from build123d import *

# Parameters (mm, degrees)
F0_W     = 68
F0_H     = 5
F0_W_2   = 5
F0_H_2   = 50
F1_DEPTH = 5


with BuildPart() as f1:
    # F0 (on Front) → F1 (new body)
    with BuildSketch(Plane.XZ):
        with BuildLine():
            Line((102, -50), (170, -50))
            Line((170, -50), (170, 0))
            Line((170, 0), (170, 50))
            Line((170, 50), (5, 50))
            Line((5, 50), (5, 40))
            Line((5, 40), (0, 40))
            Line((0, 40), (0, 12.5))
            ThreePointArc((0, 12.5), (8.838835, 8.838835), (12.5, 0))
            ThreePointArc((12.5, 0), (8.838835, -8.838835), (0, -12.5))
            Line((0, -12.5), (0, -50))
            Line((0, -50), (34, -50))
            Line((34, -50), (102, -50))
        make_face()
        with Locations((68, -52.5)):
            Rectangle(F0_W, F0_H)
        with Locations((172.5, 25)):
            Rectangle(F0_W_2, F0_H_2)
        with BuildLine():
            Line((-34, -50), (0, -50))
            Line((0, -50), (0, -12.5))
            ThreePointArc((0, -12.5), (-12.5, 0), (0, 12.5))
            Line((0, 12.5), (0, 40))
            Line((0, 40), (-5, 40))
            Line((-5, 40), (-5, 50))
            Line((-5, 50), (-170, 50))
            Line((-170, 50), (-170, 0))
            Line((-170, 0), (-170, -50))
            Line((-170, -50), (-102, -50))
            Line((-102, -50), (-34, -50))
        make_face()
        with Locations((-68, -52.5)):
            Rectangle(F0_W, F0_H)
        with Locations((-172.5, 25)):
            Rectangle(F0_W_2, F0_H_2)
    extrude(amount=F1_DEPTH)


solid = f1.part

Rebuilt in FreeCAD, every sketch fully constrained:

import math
import FreeCAD as App
import Part
import Sketcher
from FreeCAD import Vector
Q = App.Units.Quantity

doc = App.newDocument("Part")
body = doc.addObject("PartDesign::Body", "Body")

# Sketch on XZ plane
sketch1 = body.newObject("Sketcher::SketchObject", "Sketch")
sketch1.AttachmentSupport = (doc.getObject("XZ_Plane"), [""])
sketch1.MapMode = "FlatFace"
sketch1.addGeometry(Part.LineSegment(Vector(170, -50, 0), Vector(170, 0, 0)), False)
sketch1.addGeometry(Part.LineSegment(Vector(170, 0, 0), Vector(175, 0, 0)), False)
sketch1.addGeometry(Part.LineSegment(Vector(175, 0, 0), Vector(175, 50, 0)), False)
sketch1.addGeometry(Part.LineSegment(Vector(175, 50, 0), Vector(5, 50, 0)), False)
sketch1.addGeometry(Part.LineSegment(Vector(5, 50, 0), Vector(5, 40, 0)), False)
sketch1.addGeometry(Part.LineSegment(Vector(5, 40, 0), Vector(-5, 40, 0)), False)
sketch1.addGeometry(Part.LineSegment(Vector(-5, 40, 0), Vector(-5, 50, 0)), False)
sketch1.addGeometry(Part.LineSegment(Vector(-5, 50, 0), Vector(-175, 50, 0)), False)
sketch1.addGeometry(Part.LineSegment(Vector(-175, 50, 0), Vector(-175, 0, 0)), False)
sketch1.addGeometry(Part.LineSegment(Vector(-175, 0, 0), Vector(-170, 0, 0)), False)
sketch1.addGeometry(Part.LineSegment(Vector(-170, 0, 0), Vector(-170, -50, 0)), False)
sketch1.addGeometry(Part.LineSegment(Vector(-170, -50, 0), Vector(-102, -50, 0)), False)
sketch1.addGeometry(Part.LineSegment(Vector(-102, -50, 0), Vector(-102, -55, 0)), False)
sketch1.addGeometry(Part.LineSegment(Vector(-102, -55, 0), Vector(-34, -55, 0)), False)
sketch1.addGeometry(Part.LineSegment(Vector(-34, -55, 0), Vector(-34, -50, 0)), False)
sketch1.addGeometry(Part.LineSegment(Vector(-34, -50, 0), Vector(34, -50, 0)), False)
sketch1.addGeometry(Part.LineSegment(Vector(34, -50, 0), Vector(34, -55, 0)), False)
sketch1.addGeometry(Part.LineSegment(Vector(34, -55, 0), Vector(102, -55, 0)), False)
sketch1.addGeometry(Part.LineSegment(Vector(102, -55, 0), Vector(102, -50, 0)), False)
sketch1.addGeometry(Part.LineSegment(Vector(102, -50, 0), Vector(170, -50, 0)), False)
sketch1.addGeometry(Part.ArcOfCircle(Part.Circle(Vector(0.000001, 0.000001, 0), Vector(0, 0, 1), 12.499999), math.radians(-0.000004), math.radians(90.000004)), False)
sketch1.addGeometry(Part.ArcOfCircle(Part.Circle(Vector(0.000001, -0.000001, 0), Vector(0, 0, 1), 12.499999), math.radians(-90.000004), math.radians(0.000004)), False)
sketch1.addGeometry(Part.ArcOfCircle(Part.Circle(Vector(0, 0, 0), Vector(0, 0, 1), 12.5), math.radians(90), math.radians(270)), False)
sketch1.addConstraint(Sketcher.Constraint("Coincident", 0, 2, 1, 1))
sketch1.addConstraint(Sketcher.Constraint("Coincident", 1, 2, 2, 1))
sketch1.addConstraint(Sketcher.Constraint("Coincident", 2, 2, 3, 1))
sketch1.addConstraint(Sketcher.Constraint("Coincident", 3, 2, 4, 1))
sketch1.addConstraint(Sketcher.Constraint("Coincident", 4, 2, 5, 1))
sketch1.addConstraint(Sketcher.Constraint("Coincident", 5, 2, 6, 1))
sketch1.addConstraint(Sketcher.Constraint("Coincident", 6, 2, 7, 1))
sketch1.addConstraint(Sketcher.Constraint("Coincident", 7, 2, 8, 1))
sketch1.addConstraint(Sketcher.Constraint("Coincident", 8, 2, 9, 1))
sketch1.addConstraint(Sketcher.Constraint("Coincident", 9, 2, 10, 1))
sketch1.addConstraint(Sketcher.Constraint("Coincident", 10, 2, 11, 1))
sketch1.addConstraint(Sketcher.Constraint("Coincident", 11, 2, 12, 1))
sketch1.addConstraint(Sketcher.Constraint("Coincident", 12, 2, 13, 1))
sketch1.addConstraint(Sketcher.Constraint("Coincident", 13, 2, 14, 1))
sketch1.addConstraint(Sketcher.Constraint("Coincident", 14, 2, 15, 1))
sketch1.addConstraint(Sketcher.Constraint("Coincident", 15, 2, 16, 1))
sketch1.addConstraint(Sketcher.Constraint("Coincident", 16, 2, 17, 1))
sketch1.addConstraint(Sketcher.Constraint("Coincident", 17, 2, 18, 1))
sketch1.addConstraint(Sketcher.Constraint("Coincident", 18, 2, 19, 1))
sketch1.addConstraint(Sketcher.Constraint("Coincident", 19, 2, 0, 1))
sketch1.addConstraint(Sketcher.Constraint("Tangent", 20, 1, 21, 2))
sketch1.addConstraint(Sketcher.Constraint("Tangent", 21, 1, 22, 2))
sketch1.addConstraint(Sketcher.Constraint("Tangent", 22, 1, 20, 2))
sketch1.addConstraint(Sketcher.Constraint("Vertical", 0))
sketch1.addConstraint(Sketcher.Constraint("Horizontal", 1))
sketch1.addConstraint(Sketcher.Constraint("Vertical", 2))
sketch1.addConstraint(Sketcher.Constraint("Horizontal", 3))
sketch1.addConstraint(Sketcher.Constraint("Vertical", 4))
sketch1.addConstraint(Sketcher.Constraint("Horizontal", 5))
sketch1.addConstraint(Sketcher.Constraint("Vertical", 6))
sketch1.addConstraint(Sketcher.Constraint("Horizontal", 7))
sketch1.addConstraint(Sketcher.Constraint("Vertical", 8))
sketch1.addConstraint(Sketcher.Constraint("Horizontal", 9))
sketch1.addConstraint(Sketcher.Constraint("Vertical", 10))
sketch1.addConstraint(Sketcher.Constraint("Horizontal", 11))
sketch1.addConstraint(Sketcher.Constraint("Vertical", 12))
sketch1.addConstraint(Sketcher.Constraint("Horizontal", 13))
sketch1.addConstraint(Sketcher.Constraint("Vertical", 14))
sketch1.addConstraint(Sketcher.Constraint("Horizontal", 15))
sketch1.addConstraint(Sketcher.Constraint("Vertical", 16))
sketch1.addConstraint(Sketcher.Constraint("Horizontal", 17))
sketch1.addConstraint(Sketcher.Constraint("Vertical", 18))
sketch1.addConstraint(Sketcher.Constraint("Horizontal", 19))
sketch1.addConstraint(Sketcher.Constraint("Coincident", 20, 3, -1, 1))
sketch1.addConstraint(Sketcher.Constraint("Symmetric", 1, 2, 8, 2, -1, 1))
sketch1.addConstraint(Sketcher.Constraint("Symmetric", 3, 2, 6, 2, -2))
sketch1.addConstraint(Sketcher.Constraint("Symmetric", 0, 2, 9, 2, -2))
sketch1.addConstraint(Sketcher.Constraint("Symmetric", 13, 2, 16, 2, -2))
sketch1.addConstraint(Sketcher.Constraint("Symmetric", 11, 2, 18, 2, -2))
sketch1.addConstraint(Sketcher.Constraint("PointOnObject", 20, 1, -1))
sketch1.addConstraint(Sketcher.Constraint("PointOnObject", 21, 1, -2))
sketch1.addConstraint(Sketcher.Constraint("PointOnObject", 22, 1, -2))
sketch1.addConstraint(Sketcher.Constraint("Horizontal", 11, 2, 14, 2))
sketch1.addConstraint(Sketcher.Constraint("Equal", 11, 13))
sketch1.addConstraint(Sketcher.Constraint("Equal", 13, 15))
sketch1.addConstraint(Sketcher.Constraint("Equal", 0, 2))
sketch1.addConstraint(Sketcher.Constraint("Equal", 5, 4))
sketch1.addConstraint(Sketcher.Constraint("Equal", 9, 12))
sketch1.addConstraint(Sketcher.Constraint("Radius", 20, Q("12.499999 mm")))
sketch1.addConstraint(Sketcher.Constraint("DistanceX", 1, 1, 1, 2, Q("5 mm")))
sketch1.addConstraint(Sketcher.Constraint("DistanceX", 3, 2, 3, 1, Q("170 mm")))
sketch1.addConstraint(Sketcher.Constraint("DistanceX", 5, 2, 5, 1, Q("10 mm")))
sketch1.addConstraint(Sketcher.Constraint("DistanceY", 0, 1, 0, 2, Q("50 mm")))
pad1 = body.newObject("PartDesign::Pad", "Pad")
pad1.Profile = sketch1
pad1.Length = 5

doc.recompute()
